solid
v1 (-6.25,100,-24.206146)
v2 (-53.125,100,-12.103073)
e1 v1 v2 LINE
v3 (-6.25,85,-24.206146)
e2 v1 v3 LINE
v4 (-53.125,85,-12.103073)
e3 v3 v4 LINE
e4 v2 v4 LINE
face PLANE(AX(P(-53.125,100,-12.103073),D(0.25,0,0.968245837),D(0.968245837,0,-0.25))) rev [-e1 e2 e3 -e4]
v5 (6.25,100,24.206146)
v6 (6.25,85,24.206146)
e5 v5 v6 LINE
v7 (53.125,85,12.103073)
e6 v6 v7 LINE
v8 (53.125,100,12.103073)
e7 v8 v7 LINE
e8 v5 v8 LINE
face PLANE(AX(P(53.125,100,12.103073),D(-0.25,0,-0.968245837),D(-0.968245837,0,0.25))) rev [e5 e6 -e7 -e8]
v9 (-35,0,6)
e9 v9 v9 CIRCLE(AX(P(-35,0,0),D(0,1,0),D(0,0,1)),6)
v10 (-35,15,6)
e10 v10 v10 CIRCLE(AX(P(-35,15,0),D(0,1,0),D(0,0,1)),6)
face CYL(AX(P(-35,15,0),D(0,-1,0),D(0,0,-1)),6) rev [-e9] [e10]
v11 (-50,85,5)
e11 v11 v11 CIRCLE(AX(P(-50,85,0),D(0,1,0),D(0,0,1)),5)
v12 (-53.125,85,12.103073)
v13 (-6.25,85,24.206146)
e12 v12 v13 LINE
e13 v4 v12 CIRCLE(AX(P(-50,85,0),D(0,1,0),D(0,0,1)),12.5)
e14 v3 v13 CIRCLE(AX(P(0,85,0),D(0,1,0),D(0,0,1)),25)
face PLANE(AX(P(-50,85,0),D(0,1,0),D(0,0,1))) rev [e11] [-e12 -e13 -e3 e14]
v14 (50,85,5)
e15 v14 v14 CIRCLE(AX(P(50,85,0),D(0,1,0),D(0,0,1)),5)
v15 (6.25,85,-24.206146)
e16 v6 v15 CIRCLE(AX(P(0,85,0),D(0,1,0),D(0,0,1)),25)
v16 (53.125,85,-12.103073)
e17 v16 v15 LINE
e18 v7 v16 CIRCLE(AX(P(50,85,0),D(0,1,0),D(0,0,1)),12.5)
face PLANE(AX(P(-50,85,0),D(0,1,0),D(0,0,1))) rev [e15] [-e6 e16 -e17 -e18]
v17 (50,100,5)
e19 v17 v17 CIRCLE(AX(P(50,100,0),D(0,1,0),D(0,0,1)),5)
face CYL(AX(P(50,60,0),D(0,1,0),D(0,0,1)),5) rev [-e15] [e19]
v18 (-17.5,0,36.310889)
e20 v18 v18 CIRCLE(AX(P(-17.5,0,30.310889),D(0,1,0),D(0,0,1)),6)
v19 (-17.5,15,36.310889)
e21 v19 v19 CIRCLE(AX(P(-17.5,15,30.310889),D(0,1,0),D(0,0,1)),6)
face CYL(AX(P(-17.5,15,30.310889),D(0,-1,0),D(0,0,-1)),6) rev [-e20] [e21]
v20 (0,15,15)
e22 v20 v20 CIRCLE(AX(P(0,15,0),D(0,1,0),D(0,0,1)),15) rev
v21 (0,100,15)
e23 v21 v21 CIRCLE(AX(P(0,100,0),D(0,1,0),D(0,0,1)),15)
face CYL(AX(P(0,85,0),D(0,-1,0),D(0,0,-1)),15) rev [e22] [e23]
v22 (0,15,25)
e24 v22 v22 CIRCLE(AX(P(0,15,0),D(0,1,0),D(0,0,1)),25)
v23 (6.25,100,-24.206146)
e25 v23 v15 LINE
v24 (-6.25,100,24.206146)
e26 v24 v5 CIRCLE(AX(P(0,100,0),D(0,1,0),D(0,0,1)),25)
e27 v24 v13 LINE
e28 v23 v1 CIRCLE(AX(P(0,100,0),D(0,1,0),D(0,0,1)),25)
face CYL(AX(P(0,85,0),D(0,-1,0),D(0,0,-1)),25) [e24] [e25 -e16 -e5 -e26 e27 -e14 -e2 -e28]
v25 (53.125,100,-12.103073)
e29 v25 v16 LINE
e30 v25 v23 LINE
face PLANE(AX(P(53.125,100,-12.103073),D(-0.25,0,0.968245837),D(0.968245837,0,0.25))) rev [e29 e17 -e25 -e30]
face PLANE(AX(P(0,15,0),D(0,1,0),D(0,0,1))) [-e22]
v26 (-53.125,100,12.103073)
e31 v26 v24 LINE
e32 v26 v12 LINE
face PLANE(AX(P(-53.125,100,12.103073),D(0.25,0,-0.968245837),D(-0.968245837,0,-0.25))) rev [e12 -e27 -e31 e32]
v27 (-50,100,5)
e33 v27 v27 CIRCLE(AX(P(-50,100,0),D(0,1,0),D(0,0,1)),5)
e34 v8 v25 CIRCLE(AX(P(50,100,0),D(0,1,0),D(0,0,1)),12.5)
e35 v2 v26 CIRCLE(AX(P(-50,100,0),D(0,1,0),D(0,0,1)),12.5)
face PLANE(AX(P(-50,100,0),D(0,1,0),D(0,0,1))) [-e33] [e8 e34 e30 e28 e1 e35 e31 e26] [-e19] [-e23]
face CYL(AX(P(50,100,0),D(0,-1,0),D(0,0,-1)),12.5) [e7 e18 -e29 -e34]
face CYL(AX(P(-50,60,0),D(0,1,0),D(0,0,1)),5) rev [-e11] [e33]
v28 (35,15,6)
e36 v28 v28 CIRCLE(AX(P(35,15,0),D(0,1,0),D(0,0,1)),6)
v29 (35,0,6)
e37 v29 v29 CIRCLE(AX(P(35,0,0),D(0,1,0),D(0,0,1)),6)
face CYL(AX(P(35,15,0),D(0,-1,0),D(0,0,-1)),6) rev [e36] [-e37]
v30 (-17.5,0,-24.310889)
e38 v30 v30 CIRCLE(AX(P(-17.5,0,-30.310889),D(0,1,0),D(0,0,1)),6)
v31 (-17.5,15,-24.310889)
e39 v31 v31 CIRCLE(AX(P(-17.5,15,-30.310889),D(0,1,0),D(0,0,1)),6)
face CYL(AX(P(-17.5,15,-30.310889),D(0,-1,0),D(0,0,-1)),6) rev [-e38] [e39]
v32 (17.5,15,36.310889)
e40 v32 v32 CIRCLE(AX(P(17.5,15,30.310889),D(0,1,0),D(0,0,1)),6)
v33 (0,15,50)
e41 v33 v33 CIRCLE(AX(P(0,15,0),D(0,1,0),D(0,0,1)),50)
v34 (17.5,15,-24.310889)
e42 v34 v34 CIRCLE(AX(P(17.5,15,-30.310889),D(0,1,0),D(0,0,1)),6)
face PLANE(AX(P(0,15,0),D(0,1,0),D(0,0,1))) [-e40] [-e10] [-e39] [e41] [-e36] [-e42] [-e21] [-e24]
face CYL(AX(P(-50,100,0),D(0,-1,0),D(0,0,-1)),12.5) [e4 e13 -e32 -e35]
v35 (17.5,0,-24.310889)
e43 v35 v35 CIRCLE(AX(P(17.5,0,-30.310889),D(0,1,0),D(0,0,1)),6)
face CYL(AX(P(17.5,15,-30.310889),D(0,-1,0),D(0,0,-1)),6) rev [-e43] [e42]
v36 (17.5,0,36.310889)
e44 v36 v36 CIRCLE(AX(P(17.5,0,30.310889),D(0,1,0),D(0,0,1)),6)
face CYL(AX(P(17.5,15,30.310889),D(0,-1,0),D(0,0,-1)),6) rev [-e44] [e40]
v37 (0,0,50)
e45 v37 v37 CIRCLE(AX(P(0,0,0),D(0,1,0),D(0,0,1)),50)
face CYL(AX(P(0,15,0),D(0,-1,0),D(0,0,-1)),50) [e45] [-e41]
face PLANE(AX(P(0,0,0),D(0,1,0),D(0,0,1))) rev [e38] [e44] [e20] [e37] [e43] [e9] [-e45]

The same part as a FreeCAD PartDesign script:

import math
import FreeCAD as App
import Part
import Sketcher
from FreeCAD import Vector
Q = App.Units.Quantity

doc = App.newDocument("Part")
params = doc.addObject("Spreadsheet::Sheet", "Params")
for row, (alias, value) in enumerate([
    ("sketch1_diameter", "100 mm"),
    ("sketch1_diameter2", "12 mm"),
    ("pad1_length", "15 mm"),
    ("sketch2_diameter", "50 mm"),
    ("sketch2_diameter2", "30 mm"),
    ("pad2_length", "70 mm"),
    ("sketch3_radius", "25 mm"),
    ("sketch3_radius2", "12.5 mm"),
    ("pad3_length", "15 mm"),
    ("sketch4_diameter", "30 mm"),
    ("sketch4_diameter2", "10 mm"),
    ("pocket1_length", "40 mm"),
], start=1):
    params.set(f"A{row}", alias)
    params.set(f"B{row}", "=" + value)
    params.setAlias(f"B{row}", alias)

body = doc.addObject("PartDesign::Body", "Body")

# Sketch on XZ plane
sketch1 = doc.addObject("Sketcher::SketchObject", "Sketch")
body.addObject(sketch1)
sketch1.AttachmentSupport = (doc.XZ_Plane, [""])
sketch1.MapMode = "FlatFace"
sketch1.addGeometry([
    Part.Circle(Vector(0, 0, 0), Vector(0, 0, 1), 50),  # 0
    Part.Circle(Vector(-17.5, -30.310889, 0), Vector(0, 0, 1), 6),  # 1
    Part.Circle(Vector(-35, 0, 0), Vector(0, 0, 1), 6),  # 2
    Part.Circle(Vector(-17.5, 30.310889, 0), Vector(0, 0, 1), 6),  # 3
    Part.Circle(Vector(17.5, -30.310889, 0), Vector(0, 0, 1), 6),  # 4
    Part.Circle(Vector(35, 0, 0), Vector(0, 0, 1), 6),  # 5
    Part.Circle(Vector(17.5, 30.310889, 0), Vector(0, 0, 1), 6),  # 6
], False)
sketch1.addConstraint([
    Sketcher.Constraint("Coincident", 0, 3, -1, 1),
    Sketcher.Constraint("Equal", 1, 2),
    Sketcher.Constraint("Equal", 2, 3),
    Sketcher.Constraint("Equal", 3, 4),
    Sketcher.Constraint("Equal", 4, 5),
    Sketcher.Constraint("Equal", 5, 6),
    Sketcher.Constraint("Symmetric", 3, 3, 4, 3, -1, 1),
    Sketcher.Constraint("Symmetric", 2, 3, 5, 3, -1, 1),
    Sketcher.Constraint("Symmetric", 1, 3, 6, 3, -1, 1),
    Sketcher.Constraint("Symmetric", 1, 3, 4, 3, -2),
    Sketcher.Constraint("PointOnObject", 2, 3, -1),
    Sketcher.Constraint("Diameter", 0, Q("100 mm")),
    Sketcher.Constraint("Diameter", 1, Q("12 mm")),
    Sketcher.Constraint("DistanceX", 2, 3, -1, 1, Q("35 mm")),
    Sketcher.Constraint("DistanceX", 1, 3, 4, 3, Q("35 mm")),
    Sketcher.Constraint("DistanceY", 1, 3, -1, 1, Q("30.310889 mm")),
])
sketch1.setExpression("Constraints[11]", "Params.sketch1_diameter")
sketch1.setExpression("Constraints[12]", "Params.sketch1_diameter2")
pad1 = doc.addObject("PartDesign::Pad", "Pad")
body.addObject(pad1)
pad1.Profile = sketch1
pad1.setExpression("Length", "Params.pad1_length")
pad1.Reversed = True

# Sketch on XZ plane
sketch2 = doc.addObject("Sketcher::SketchObject", "Sketch001")
body.addObject(sketch2)
sketch2.AttachmentSupport = (doc.XZ_Plane, [""])
sketch2.MapMode = "FlatFace"
sketch2.AttachmentOffset = App.Placement(Vector(0, 0, -15), App.Rotation())
sketch2.addGeometry([
    Part.Circle(Vector(0, 0, 0), Vector(0, 0, 1), 25),
    Part.Circle(Vector(0, 0, 0), Vector(0, 0, 1), 15),
], False)
sketch2.addConstraint([
    Sketcher.Constraint("Coincident", 0, 3, -1, 1),
    Sketcher.Constraint("Coincident", 1, 3, -1, 1),
    Sketcher.Constraint("Diameter", 0, Q("50 mm")),
    Sketcher.Constraint("Diameter", 1, Q("30 mm")),
])
sketch2.setExpression("Constraints[2]", "Params.sketch2_diameter")
sketch2.setExpression("Constraints[3]", "Params.sketch2_diameter2")
pad2 = doc.addObject("PartDesign::Pad", "Pad001")
body.addObject(pad2)
pad2.Profile = sketch2
pad2.setExpression("Length", "Params.pad2_length")
pad2.Reversed = True

# Sketch on XZ plane
sketch3 = doc.addObject("Sketcher::SketchObject", "Sketch002")
body.addObject(sketch3)
sketch3.AttachmentSupport = (doc.XZ_Plane, [""])
sketch3.MapMode = "FlatFace"
sketch3.AttachmentOffset = App.Placement(Vector(0, 0, -85), App.Rotation())
sketch3.addGeometry([
    Part.LineSegment(Vector(-6.25, -24.206146, 0), Vector(-53.125, -12.103073, 0)),  # 0
    Part.ArcOfCircle(Part.Circle(Vector(-50, 0, 0), Vector(0, 0, 1), 12.5), math.radians(104.477512), math.radians(255.522488)),  # 1
    Part.LineSegment(Vector(-53.125, 12.103073, 0), Vector(-6.25, 24.206146, 0)),  # 2
    Part.ArcOfCircle(Part.Circle(Vector(0, 0, 0), Vector(0, 0, 1), 25), math.radians(75.522488), math.radians(104.477512)),  # 3
    Part.LineSegment(Vector(6.25, 24.206146, 0), Vector(53.125, 12.103073, 0)),  # 4
    Part.ArcOfCircle(Part.Circle(Vector(50, 0, 0), Vector(0, 0, 1), 12.5), math.radians(-75.522488), math.radians(75.522488)),  # 5
    Part.LineSegment(Vector(53.125, -12.103073, 0), Vector(6.25, -24.206146, 0)),  # 6
    Part.ArcOfCircle(Part.Circle(Vector(0, 0, 0), Vector(0, 0, 1), 25), math.radians(-104.477512), math.radians(-75.522488)),  # 7
], False)
sketch3.addConstraint([
    Sketcher.Constraint("Tangent", 0, 2, 1, 2),
    Sketcher.Constraint("Tangent", 1, 1, 2, 1),
    Sketcher.Constraint("Tangent", 2, 2, 3, 2),
    Sketcher.Constraint("Tangent", 3, 1, 4, 1),
    Sketcher.Constraint("Tangent", 4, 2, 5, 2),
    Sketcher.Constraint("Tangent", 5, 1, 6, 1),
    Sketcher.Constraint("Tangent", 6, 2, 7, 2),
    Sketcher.Constraint("Tangent", 7, 1, 0, 1),
    Sketcher.Constraint("Coincident", 3, 3, -1, 1),
    Sketcher.Constraint("Coincident", 7, 3, -1, 1),
    Sketcher.Constraint("Equal", 1, 5),
    Sketcher.Constraint("Equal", 3, 7),
    Sketcher.Constraint("Symmetric", 1, 3, 5, 3, -1, 1),
    Sketcher.Constraint("PointOnObject", 1, 3, -1),
    Sketcher.Constraint("Radius", 3, Q("25 mm")),
    Sketcher.Constraint("Radius", 1, Q("12.5 mm")),
    Sketcher.Constraint("DistanceX", 1, 3, -1, 1, Q("50 mm")),
])
sketch3.setExpression("Constraints[14]", "Params.sketch3_radius")
sketch3.setExpression("Constraints[15]", "Params.sketch3_radius2")
pad3 = doc.addObject("PartDesign::Pad", "Pad002")
body.addObject(pad3)
pad3.Profile = sketch3
pad3.setExpression("Length", "Params.pad3_length")
pad3.Reversed = True

# Sketch on XZ plane
sketch4 = doc.addObject("Sketcher::SketchObject", "Sketch003")
body.addObject(sketch4)
sketch4.AttachmentSupport = (doc.XZ_Plane, [""])
sketch4.MapMode = "FlatFace"
sketch4.AttachmentOffset = App.Placement(Vector(0, 0, -60), App.Rotation())
sketch4.addGeometry([
    Part.Circle(Vector(0, 0, 0), Vector(0, 0, 1), 15),
    Part.Circle(Vector(-50, 0, 0), Vector(0, 0, 1), 5),
    Part.Circle(Vector(50, 0, 0), Vector(0, 0, 1), 5),
], False)
sketch4.addConstraint([
    Sketcher.Constraint("Coincident", 0, 3, -1, 1),
    Sketcher.Constraint("Equal", 1, 2),
    Sketcher.Constraint("Symmetric", 1, 3, 2, 3, -1, 1),
    Sketcher.Constraint("PointOnObject", 1, 3, -1),
    Sketcher.Constraint("Diameter", 0, Q("30 mm")),
    Sketcher.Constraint("Diameter", 1, Q("10 mm")),
    Sketcher.Constraint("DistanceX", 1, 3, -1, 1, Q("50 mm")),
])
sketch4.setExpression("Constraints[4]", "Params.sketch4_diameter")
sketch4.setExpression("Constraints[5]", "Params.sketch4_diameter2")
pocket1 = doc.addObject("PartDesign::Pocket", "Pocket")
body.addObject(pocket1)
pocket1.Profile = sketch4
pocket1.setExpression("Length", "Params.pocket1_length")

doc.recompute()
